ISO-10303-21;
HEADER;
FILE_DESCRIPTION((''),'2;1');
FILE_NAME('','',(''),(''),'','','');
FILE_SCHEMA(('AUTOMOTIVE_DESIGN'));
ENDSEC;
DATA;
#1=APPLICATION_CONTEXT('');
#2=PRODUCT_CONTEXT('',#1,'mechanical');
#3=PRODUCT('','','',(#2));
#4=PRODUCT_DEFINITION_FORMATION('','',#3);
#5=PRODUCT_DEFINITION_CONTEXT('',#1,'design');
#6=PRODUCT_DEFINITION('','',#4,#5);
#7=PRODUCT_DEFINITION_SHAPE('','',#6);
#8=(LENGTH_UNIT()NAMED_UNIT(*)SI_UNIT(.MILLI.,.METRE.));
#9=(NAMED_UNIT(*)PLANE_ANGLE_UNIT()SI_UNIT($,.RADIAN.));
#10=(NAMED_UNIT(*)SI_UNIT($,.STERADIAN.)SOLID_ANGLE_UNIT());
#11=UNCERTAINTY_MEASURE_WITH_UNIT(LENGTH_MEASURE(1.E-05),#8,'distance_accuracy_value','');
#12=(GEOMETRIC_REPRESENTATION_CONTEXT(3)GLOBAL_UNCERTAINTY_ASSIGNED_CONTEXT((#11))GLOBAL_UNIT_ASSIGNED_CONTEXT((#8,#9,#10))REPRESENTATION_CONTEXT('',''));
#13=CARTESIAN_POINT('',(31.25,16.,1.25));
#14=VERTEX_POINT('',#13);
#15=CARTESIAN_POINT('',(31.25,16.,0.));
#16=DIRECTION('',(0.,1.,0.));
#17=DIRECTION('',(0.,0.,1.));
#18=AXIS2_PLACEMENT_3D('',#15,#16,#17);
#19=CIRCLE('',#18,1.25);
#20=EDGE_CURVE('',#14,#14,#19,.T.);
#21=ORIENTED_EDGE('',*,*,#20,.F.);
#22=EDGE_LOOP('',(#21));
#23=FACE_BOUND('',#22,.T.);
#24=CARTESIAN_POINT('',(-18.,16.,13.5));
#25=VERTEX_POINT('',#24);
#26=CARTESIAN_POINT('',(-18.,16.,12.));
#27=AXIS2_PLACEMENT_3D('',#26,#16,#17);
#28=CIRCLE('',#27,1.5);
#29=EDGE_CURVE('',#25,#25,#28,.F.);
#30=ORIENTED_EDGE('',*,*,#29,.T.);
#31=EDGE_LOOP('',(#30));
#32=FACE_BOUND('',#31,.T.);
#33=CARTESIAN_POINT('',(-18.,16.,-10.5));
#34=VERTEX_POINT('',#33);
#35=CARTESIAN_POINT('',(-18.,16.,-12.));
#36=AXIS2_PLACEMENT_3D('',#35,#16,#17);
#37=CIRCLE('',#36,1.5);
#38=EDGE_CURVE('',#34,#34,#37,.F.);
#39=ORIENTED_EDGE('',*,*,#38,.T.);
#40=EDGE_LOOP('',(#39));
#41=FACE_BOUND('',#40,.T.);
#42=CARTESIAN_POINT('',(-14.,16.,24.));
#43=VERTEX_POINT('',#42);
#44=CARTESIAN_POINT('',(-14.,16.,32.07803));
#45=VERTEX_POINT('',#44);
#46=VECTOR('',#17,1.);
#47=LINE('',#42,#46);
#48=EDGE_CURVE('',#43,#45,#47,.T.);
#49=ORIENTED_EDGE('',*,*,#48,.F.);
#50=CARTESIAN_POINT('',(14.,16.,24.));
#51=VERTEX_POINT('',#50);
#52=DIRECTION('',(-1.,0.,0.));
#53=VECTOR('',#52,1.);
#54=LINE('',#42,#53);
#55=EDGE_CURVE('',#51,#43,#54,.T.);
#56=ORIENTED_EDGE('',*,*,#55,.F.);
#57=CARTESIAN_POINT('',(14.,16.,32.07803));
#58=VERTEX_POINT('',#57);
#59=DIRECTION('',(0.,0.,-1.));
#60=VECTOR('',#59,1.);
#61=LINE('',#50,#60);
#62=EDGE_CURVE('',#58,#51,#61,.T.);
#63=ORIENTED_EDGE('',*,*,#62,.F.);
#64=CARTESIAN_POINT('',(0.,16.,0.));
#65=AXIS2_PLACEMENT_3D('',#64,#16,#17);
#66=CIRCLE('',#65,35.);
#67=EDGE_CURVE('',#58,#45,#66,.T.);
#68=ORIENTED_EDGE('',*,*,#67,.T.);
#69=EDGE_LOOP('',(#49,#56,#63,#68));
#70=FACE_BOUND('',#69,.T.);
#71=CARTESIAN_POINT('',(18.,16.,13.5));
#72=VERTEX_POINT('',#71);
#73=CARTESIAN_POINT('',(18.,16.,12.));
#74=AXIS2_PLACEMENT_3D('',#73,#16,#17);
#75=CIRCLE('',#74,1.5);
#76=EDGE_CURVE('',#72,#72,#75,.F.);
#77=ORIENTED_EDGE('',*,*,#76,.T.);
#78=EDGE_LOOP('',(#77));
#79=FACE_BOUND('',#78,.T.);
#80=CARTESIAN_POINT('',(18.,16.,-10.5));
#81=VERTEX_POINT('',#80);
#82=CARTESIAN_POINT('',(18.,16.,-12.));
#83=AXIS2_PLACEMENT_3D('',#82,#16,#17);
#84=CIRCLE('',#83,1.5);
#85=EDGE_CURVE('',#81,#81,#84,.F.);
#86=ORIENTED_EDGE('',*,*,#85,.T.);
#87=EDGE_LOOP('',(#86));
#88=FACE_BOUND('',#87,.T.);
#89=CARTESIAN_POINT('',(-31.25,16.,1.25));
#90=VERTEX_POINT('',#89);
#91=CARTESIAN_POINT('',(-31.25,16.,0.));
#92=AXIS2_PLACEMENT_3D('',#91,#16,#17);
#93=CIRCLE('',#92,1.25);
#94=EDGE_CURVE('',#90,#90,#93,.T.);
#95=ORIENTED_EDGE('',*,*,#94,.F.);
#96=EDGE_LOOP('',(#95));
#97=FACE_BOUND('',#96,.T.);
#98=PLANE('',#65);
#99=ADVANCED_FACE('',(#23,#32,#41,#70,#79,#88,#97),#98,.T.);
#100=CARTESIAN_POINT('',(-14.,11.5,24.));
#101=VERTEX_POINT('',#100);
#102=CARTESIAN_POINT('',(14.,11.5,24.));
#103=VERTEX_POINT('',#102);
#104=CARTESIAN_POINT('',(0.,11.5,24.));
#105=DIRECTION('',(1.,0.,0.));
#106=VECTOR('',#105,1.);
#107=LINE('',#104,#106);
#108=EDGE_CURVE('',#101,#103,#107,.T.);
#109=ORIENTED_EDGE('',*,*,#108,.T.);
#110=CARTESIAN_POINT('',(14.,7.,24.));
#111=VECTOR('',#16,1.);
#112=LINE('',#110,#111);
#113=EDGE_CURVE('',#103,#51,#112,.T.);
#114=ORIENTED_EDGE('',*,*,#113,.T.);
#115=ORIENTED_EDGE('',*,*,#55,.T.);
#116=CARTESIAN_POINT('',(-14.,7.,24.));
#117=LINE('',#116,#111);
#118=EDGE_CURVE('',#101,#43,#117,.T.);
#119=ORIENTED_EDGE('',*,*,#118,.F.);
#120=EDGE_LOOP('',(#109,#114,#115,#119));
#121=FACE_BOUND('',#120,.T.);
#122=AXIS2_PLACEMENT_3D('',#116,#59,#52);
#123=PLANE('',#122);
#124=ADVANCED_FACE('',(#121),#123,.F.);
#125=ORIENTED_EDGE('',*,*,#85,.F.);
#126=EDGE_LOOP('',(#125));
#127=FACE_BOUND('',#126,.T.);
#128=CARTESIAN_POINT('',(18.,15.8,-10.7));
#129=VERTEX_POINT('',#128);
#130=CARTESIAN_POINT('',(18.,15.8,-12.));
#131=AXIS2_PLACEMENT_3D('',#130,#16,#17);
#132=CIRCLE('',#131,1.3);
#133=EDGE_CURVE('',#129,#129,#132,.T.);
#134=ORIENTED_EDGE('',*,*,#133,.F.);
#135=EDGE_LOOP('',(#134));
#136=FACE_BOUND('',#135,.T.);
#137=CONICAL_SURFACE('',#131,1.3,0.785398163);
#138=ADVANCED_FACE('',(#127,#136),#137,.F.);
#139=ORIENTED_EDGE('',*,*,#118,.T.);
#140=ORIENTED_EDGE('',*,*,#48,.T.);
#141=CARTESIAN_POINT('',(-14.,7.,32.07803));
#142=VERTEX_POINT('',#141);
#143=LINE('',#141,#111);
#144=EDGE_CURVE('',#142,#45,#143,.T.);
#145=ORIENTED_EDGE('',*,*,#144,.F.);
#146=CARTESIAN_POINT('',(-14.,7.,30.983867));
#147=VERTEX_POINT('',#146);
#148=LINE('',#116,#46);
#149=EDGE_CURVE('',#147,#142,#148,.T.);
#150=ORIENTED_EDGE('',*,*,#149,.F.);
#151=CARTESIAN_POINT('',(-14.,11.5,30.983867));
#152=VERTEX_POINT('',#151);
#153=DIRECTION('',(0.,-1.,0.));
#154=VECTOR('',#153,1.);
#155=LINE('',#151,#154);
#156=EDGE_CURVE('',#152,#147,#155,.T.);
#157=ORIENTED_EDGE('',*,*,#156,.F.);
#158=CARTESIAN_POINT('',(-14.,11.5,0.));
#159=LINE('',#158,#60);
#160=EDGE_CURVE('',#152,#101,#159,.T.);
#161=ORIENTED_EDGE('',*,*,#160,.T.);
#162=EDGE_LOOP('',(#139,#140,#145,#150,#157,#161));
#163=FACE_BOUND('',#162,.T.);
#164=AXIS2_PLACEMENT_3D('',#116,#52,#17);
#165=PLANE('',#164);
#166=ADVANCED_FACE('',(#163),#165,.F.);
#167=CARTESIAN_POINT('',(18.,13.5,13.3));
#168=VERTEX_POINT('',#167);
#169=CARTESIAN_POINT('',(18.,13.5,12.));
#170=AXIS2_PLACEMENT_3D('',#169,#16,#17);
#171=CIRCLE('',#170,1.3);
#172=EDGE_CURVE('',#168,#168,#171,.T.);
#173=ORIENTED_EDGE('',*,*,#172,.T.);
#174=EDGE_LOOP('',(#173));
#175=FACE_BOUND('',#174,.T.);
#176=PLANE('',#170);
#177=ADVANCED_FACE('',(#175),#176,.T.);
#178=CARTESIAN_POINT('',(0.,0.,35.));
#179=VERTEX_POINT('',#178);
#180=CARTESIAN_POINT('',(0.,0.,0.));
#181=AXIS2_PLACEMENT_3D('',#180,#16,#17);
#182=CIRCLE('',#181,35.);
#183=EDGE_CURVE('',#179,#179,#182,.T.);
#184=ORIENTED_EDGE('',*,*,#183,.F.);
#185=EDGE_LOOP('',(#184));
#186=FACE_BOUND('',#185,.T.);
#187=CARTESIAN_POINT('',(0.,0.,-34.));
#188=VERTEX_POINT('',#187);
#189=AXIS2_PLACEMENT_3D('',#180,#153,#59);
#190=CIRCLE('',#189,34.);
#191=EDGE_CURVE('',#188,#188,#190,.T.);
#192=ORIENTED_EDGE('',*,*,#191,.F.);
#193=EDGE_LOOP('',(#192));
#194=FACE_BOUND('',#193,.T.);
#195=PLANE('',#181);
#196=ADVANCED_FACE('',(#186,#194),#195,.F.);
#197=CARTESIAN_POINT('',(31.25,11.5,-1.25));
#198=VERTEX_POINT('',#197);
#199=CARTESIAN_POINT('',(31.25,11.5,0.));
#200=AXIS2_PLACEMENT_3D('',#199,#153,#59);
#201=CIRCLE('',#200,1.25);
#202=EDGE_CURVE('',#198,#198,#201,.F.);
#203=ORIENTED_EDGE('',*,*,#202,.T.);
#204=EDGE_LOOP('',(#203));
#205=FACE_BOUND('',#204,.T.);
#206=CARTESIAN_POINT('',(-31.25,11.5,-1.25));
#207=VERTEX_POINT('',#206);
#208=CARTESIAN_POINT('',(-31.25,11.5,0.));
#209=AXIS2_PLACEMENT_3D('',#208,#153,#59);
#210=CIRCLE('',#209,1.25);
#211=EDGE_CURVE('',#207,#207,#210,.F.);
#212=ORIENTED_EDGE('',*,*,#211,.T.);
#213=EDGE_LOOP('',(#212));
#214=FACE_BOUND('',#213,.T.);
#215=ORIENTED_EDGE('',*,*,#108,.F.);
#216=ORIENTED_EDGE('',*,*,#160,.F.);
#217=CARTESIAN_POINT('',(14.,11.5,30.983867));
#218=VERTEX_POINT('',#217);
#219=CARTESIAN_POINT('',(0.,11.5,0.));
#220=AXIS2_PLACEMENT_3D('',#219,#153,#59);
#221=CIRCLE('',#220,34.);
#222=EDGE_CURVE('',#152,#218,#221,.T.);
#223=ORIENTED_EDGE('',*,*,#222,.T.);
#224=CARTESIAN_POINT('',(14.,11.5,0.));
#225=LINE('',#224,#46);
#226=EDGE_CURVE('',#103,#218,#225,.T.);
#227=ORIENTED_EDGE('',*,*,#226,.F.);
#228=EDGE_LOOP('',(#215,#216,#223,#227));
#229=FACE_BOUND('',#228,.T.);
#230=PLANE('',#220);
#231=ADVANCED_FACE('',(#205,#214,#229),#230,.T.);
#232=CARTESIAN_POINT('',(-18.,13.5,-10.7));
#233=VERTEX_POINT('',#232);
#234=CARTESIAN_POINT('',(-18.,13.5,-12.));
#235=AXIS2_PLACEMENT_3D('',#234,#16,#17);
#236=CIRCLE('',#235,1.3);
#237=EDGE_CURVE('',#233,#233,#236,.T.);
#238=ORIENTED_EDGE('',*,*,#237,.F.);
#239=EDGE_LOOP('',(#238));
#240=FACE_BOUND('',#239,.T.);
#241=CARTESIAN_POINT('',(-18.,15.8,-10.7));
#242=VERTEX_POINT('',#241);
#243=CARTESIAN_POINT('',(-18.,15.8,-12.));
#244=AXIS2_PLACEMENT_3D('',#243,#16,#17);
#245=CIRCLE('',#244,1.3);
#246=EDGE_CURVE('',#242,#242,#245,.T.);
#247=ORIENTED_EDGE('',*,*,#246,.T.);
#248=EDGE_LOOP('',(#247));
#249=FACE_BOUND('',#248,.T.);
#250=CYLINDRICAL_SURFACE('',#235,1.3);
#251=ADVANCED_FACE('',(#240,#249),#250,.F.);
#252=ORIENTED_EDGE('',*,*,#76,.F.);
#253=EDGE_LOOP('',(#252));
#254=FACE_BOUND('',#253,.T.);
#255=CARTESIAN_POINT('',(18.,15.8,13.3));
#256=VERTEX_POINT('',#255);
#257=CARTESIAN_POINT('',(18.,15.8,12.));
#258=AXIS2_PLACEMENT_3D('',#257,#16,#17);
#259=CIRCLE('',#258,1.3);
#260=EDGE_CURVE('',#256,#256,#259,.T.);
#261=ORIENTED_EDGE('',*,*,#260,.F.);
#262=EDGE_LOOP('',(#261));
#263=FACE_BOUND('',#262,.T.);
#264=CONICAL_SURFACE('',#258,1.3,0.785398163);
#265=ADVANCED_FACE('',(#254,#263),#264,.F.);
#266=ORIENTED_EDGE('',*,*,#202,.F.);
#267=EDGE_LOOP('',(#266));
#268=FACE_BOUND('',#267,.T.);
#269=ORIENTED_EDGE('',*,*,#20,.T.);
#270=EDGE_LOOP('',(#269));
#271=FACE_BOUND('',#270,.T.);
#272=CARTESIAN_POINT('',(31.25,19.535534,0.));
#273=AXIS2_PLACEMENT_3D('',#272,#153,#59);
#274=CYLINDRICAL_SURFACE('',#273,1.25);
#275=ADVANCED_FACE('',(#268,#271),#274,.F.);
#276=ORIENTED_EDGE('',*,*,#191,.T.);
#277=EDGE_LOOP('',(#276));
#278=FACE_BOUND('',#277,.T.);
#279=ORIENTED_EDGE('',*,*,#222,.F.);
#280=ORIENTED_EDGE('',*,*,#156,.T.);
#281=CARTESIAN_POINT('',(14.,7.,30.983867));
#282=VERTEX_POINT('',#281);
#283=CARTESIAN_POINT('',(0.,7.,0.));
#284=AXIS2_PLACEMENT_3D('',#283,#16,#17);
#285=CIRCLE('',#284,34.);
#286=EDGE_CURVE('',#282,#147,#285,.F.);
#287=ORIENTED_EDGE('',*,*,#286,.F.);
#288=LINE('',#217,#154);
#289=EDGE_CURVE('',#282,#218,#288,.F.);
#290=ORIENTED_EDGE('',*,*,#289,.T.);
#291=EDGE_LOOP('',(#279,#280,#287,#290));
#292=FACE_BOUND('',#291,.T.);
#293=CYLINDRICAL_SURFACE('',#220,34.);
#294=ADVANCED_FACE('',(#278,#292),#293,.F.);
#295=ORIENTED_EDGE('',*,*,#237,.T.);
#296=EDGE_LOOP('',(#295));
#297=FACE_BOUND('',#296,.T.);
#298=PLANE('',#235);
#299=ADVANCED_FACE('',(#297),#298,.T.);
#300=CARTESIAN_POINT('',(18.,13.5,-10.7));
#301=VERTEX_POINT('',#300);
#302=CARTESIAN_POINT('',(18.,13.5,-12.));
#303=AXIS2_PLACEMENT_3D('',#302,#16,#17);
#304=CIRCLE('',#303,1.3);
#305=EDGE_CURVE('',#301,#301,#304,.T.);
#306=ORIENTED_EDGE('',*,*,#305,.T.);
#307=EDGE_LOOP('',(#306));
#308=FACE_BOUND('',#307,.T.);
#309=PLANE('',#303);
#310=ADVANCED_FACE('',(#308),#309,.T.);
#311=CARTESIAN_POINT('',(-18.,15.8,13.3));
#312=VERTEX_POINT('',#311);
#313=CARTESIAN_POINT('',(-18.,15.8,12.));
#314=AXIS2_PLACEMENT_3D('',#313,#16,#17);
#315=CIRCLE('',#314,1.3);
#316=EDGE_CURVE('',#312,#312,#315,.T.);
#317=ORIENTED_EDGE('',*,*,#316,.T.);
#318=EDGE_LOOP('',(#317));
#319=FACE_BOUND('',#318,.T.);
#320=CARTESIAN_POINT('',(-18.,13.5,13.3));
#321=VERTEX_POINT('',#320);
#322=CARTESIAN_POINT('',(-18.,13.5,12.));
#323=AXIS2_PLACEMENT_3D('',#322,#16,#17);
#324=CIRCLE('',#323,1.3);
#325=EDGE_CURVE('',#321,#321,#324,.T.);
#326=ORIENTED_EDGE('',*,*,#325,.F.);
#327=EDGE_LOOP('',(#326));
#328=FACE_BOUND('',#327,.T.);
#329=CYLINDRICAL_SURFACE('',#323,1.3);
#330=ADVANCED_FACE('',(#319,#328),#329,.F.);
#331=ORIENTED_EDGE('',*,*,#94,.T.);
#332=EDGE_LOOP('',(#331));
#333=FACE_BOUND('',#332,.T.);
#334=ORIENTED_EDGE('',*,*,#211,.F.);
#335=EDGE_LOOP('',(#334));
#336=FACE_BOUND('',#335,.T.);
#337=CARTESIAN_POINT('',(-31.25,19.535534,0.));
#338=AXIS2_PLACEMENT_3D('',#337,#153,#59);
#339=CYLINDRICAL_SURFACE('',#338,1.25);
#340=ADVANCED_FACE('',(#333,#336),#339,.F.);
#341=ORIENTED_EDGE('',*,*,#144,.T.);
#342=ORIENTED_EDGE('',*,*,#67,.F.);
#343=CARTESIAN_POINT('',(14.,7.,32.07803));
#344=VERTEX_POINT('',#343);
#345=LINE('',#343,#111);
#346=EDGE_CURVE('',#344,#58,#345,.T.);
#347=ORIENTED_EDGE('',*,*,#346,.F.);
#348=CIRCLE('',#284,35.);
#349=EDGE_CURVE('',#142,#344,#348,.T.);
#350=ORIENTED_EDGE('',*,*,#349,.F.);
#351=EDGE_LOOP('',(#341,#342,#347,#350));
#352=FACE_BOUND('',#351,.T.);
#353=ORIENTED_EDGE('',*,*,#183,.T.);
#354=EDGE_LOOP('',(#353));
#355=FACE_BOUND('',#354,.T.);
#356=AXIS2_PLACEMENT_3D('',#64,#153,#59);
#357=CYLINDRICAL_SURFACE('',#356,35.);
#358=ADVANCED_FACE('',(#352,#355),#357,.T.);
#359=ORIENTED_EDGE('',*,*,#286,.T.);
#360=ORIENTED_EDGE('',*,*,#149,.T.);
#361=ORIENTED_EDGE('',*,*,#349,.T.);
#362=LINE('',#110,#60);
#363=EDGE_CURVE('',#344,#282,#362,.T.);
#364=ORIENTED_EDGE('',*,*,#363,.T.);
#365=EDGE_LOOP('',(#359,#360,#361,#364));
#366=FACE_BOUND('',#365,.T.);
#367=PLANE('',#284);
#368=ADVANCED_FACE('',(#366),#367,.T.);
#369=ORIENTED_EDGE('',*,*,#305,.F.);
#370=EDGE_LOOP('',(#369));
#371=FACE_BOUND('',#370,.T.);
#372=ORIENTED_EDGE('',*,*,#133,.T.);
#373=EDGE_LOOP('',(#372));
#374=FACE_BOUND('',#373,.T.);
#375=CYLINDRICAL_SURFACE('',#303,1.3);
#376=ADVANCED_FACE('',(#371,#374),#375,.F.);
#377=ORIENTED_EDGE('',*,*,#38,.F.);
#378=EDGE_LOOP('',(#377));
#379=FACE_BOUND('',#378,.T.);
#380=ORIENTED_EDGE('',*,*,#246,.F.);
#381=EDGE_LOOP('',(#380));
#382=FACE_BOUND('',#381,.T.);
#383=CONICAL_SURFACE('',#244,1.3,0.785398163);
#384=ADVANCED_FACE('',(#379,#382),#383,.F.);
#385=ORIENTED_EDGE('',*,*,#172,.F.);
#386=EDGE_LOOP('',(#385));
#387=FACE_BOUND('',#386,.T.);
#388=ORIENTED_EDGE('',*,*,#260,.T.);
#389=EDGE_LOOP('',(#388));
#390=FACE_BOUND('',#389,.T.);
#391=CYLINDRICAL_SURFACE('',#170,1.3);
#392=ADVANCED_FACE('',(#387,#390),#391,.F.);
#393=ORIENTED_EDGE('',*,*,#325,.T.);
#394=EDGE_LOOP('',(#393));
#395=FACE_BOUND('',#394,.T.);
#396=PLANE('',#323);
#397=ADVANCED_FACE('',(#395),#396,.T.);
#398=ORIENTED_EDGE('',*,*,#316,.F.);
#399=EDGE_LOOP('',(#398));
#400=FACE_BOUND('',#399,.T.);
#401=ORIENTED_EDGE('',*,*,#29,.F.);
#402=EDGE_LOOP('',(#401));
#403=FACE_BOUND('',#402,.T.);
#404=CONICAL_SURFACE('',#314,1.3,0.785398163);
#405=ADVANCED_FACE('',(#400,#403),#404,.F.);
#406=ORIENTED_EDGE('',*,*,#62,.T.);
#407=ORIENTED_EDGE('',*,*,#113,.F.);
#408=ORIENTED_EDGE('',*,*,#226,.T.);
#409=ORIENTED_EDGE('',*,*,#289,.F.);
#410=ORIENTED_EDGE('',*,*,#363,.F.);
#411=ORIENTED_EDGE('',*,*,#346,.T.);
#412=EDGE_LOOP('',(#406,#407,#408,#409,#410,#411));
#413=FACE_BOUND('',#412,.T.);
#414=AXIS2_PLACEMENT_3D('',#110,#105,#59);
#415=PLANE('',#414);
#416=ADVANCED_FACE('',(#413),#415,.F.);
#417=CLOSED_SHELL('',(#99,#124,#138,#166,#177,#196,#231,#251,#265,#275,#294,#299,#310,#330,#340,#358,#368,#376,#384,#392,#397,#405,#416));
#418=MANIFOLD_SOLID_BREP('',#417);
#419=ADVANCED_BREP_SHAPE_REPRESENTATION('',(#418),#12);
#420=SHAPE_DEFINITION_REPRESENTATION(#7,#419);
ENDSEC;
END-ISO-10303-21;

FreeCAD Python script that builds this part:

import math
import FreeCAD as App
import Part
import Sketcher

V = App.Vector


def edges_at(feature, points):
    """Names of the edges that pass closest to the given points."""
    edges = feature.Shape.Edges
    near = lambda p: min(range(len(edges)), key=lambda i: edges[i].distToShape(Part.Vertex(*p))[0])
    return sorted({f"Edge{near(p) + 1}" for p in points})

doc = App.newDocument("Part")
body = doc.addObject("PartDesign::Body", "Body")

# Sketch on XZ plane
sketch1 = body.newObject("Sketcher::SketchObject", "Sketch")
sketch1.AttachmentSupport = (doc.getObject("XZ_Plane"), [""])
sketch1.MapMode = "FlatFace"
sketch1.addGeometry(Part.Circle(V(0, 0, 0), V(0, 0, 1), 35), False)
sketch1.addConstraint([
    Sketcher.Constraint("Coincident", 0, 3, -1, 1),
    Sketcher.Constraint("Diameter", 0, 70.0),
])
pad1 = body.newObject("PartDesign::Pad", "Pad")
pad1.Profile = sketch1
pad1.Length = 16
pad1.Reversed = True

# Sketch on XZ plane
sketch2 = body.newObject("Sketcher::SketchObject", "Sketch001")
sketch2.AttachmentSupport = (doc.getObject("XZ_Plane"), [""])
sketch2.MapMode = "FlatFace"
sketch2.addGeometry(Part.Circle(V(0, 0, 0), V(0, 0, 1), 34), False)
sketch2.addConstraint([
    Sketcher.Constraint("Coincident", 0, 3, -1, 1),
    Sketcher.Constraint("Diameter", 0, 68.0),
])
pocket1 = body.newObject("PartDesign::Pocket", "Pocket")
pocket1.Profile = sketch2
pocket1.Length = 11.5

# Sketch on XZ plane
sketch3 = body.newObject("Sketcher::SketchObject", "Sketch002")
sketch3.AttachmentSupport = (doc.getObject("XZ_Plane"), [""])
sketch3.MapMode = "FlatFace"
sketch3.addGeometry([
    Part.Circle(V(-31.2, 0, 0), V(0, 0, 1), 1.2),
    Part.Circle(V(31.2, 0, 0), V(0, 0, 1), 1.2),
], False)
sketch3.addConstraint([
    Sketcher.Constraint("Equal", 0, 1),
    Sketcher.Constraint("Symmetric", 0, 3, 1, 3, -1, 1),
    Sketcher.Constraint("PointOnObject", 0, 3, -1),
    Sketcher.Constraint("Diameter", 0, 2.5),
    Sketcher.Constraint("DistanceX", 0, 3, 1, 3, 62.5),
])
pocket2 = body.newObject("PartDesign::Pocket", "Pocket001")
pocket2.Profile = sketch3
pocket2.Length = 16

# Sketch on XZ plane
sketch4 = body.newObject("Sketcher::SketchObject", "Sketch003")
sketch4.AttachmentSupport = (doc.getObject("XZ_Plane"), [""])
sketch4.MapMode = "FlatFace"
sketch4.AttachmentOffset = App.Placement(V(0, 0, -7), App.Rotation())
sketch4.addGeometry([
    Part.LineSegment(V(14, 24, 0), V(-14, 24, 0)),
    Part.LineSegment(V(-14, 24, 0), V(-14, 32, 0)),
    Part.ArcOfCircle(Part.Circle(V(0, 0, 0), V(0, 0, 1), 35), math.radians(66), math.radians(114)),
    Part.LineSegment(V(14, 32, 0), V(14, 24, 0)),
], False)
sketch4.addConstraint([
    Sketcher.Constraint("Coincident", 0, 2, 1, 1),
    Sketcher.Constraint("Coincident", 1, 2, 2, 2),
    Sketcher.Constraint("Coincident", 2, 1, 3, 1),
    Sketcher.Constraint("Coincident", 3, 2, 0, 1),
    Sketcher.Constraint("Horizontal", 0),
    Sketcher.Constraint("Vertical", 1),
    Sketcher.Constraint("Vertical", 3),
    Sketcher.Constraint("Coincident", 2, 3, -1, 1),
    Sketcher.Constraint("Horizontal", 1, 2, 2, 1),
    Sketcher.Constraint("Radius", 2, 35.0),
    Sketcher.Constraint("DistanceX", 0, 2, 0, 1, 28.0),
    Sketcher.Constraint("DistanceY", -1, 1, 0, 2, 24.0),
])
pocket3 = body.newObject("PartDesign::Pocket", "Pocket002")
pocket3.Profile = sketch4
pocket3.Length = 9

# Sketch on XZ plane
sketch5 = body.newObject("Sketcher::SketchObject", "Sketch004")
sketch5.AttachmentSupport = (doc.getObject("XZ_Plane"), [""])
sketch5.MapMode = "FlatFace"
sketch5.AttachmentOffset = App.Placement(V(0, 0, -16), App.Rotation())
sketch5.addGeometry([
    Part.Circle(V(-18, -12, 0), V(0, 0, 1), 1.3),
    Part.Circle(V(18, -12, 0), V(0, 0, 1), 1.3),
    Part.Circle(V(18, 12, 0), V(0, 0, 1), 1.3),
    Part.Circle(V(-18, 12, 0), V(0, 0, 1), 1.3),
], False)
sketch5.addConstraint([
    Sketcher.Constraint("Equal", 0, 1),
    Sketcher.Constraint("Equal", 1, 2),
    Sketcher.Constraint("Equal", 2, 3),
    Sketcher.Constraint("Symmetric", 0, 3, 2, 3, -1, 1),
    Sketcher.Constraint("Symmetric", 1, 3, 3, 3, -1, 1),
    Sketcher.Constraint("Symmetric", 0, 3, 1, 3, -2),
    Sketcher.Constraint("Diameter", 0, 2.6),
    Sketcher.Constraint("DistanceX", 0, 3, -1, 1, 18.0),
    Sketcher.Constraint("DistanceY", 0, 3, -1, 1, 12.0),
])
pocket4 = body.newObject("PartDesign::Pocket", "Pocket003")
pocket4.Profile = sketch5
pocket4.Length = 2.5
pocket4.Reversed = True
doc.recompute()

chamfer = body.newObject("PartDesign::Chamfer", "Chamfer")
chamfer.Base = (pocket4, edges_at(pocket4, [
    (-18, 16, 10.7),
    (18, 16, 10.7),
    (18, 16, -13.3),
    (-18, 16, -13.3),
]))
chamfer.Size = 0.2

doc.recompute()
